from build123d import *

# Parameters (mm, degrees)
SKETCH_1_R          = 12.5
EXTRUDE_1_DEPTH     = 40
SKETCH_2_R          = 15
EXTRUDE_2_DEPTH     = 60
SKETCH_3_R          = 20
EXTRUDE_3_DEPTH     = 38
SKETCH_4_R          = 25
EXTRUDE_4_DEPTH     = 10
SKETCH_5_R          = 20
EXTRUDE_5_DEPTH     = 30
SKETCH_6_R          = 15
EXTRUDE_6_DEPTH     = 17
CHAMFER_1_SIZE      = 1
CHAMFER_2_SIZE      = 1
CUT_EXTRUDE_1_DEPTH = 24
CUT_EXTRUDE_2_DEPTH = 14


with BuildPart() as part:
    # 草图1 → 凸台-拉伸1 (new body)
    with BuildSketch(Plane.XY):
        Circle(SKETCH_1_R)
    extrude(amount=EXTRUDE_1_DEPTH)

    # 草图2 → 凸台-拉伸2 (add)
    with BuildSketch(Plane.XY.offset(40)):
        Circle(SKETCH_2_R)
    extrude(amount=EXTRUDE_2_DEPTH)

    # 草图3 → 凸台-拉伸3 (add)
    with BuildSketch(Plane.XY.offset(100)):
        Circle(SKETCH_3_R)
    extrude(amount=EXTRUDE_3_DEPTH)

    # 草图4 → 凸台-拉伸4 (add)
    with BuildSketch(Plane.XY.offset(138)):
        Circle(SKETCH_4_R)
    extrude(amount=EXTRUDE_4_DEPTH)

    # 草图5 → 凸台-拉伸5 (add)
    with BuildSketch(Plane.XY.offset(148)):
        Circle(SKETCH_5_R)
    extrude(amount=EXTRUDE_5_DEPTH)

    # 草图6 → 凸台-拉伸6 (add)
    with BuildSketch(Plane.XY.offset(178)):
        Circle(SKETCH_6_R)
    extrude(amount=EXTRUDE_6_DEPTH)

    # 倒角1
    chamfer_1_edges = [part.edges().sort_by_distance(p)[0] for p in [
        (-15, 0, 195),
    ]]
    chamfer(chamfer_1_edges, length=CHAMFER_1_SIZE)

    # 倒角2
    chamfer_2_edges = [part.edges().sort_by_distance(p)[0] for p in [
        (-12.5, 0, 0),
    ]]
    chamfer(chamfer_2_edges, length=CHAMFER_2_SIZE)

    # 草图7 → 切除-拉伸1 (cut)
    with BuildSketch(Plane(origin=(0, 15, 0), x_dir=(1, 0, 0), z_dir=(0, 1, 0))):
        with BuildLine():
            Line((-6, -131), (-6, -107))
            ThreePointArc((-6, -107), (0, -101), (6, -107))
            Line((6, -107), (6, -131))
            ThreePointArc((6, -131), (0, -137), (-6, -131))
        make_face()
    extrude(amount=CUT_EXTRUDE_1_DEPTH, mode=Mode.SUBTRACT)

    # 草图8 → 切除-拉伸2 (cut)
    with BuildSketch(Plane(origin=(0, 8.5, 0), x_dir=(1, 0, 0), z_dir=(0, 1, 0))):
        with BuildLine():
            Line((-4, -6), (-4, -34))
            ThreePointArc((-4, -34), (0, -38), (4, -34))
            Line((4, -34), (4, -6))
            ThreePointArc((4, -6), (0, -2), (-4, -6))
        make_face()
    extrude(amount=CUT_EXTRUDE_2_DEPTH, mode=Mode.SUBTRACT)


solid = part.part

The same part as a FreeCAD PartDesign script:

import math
import FreeCAD as App
import Part
import Sketcher


def edges_at(feature, points):
    """Names of the edges that pass closest to the given points."""
    edges = feature.Shape.Edges
    near = lambda p: min(range(len(edges)), key=lambda i: edges[i].distToShape(Part.Vertex(*p))[0])
    return sorted({f"Edge{near(p) + 1}" for p in points})

doc = App.newDocument("Part")
params = doc.addObject("Spreadsheet::Sheet", "Params")
for row, (alias, value) in enumerate([
    ("sketch1_diameter", "25 mm"),
    ("pad1_length", "40 mm"),
    ("sketch2_diameter", "30 mm"),
    ("pad2_length", "60 mm"),
    ("sketch3_diameter", "40 mm"),
    ("pad3_length", "38 mm"),
    ("sketch4_diameter", "50 mm"),
    ("pad4_length", "10 mm"),
    ("sketch5_diameter", "40 mm"),
    ("pad5_length", "30 mm"),
    ("sketch6_diameter", "30 mm"),
    ("pad6_length", "17 mm"),
    ("chamfer_size", "1 mm"),
    ("chamfer2_size", "1 mm"),
    ("sketch7_radius", "6 mm"),
    ("sketch7_height", "24 mm"),
    ("pocket1_length", "24 mm"),
    ("sketch8_radius", "4 mm"),
    ("sketch8_height", "28 mm"),
    ("pocket2_length", "14 mm"),
], start=1):
    params.set(f"A{row}", alias)
    params.set(f"B{row}", "=" + value)
    params.setAlias(f"B{row}", alias)

body = doc.addObject("PartDesign::Body", "Body")

sketch1 = body.newObject("Sketcher::SketchObject", "Sketch")
sketch1.AttachmentSupport = (doc.getObject("XY_Plane"), [""])
sketch1.MapMode = "FlatFace"
sketch1.addGeometry(Part.Circle(App.Vector(0, 0, 0), App.Vector(0, 0, 1), 12), False)
sketch1.addConstraint([
    Sketcher.Constraint("Coincident", 0, 3, -1, 1),
    Sketcher.Constraint("Diameter", 0, 25.0),
])
sketch1.setExpression("Constraints[1]", "Params.sketch1_diameter")
pad1 = body.newObject("PartDesign::Pad", "Pad")
pad1.Profile = sketch1
pad1.setExpression("Length", "Params.pad1_length")

sketch2 = body.newObject("Sketcher::SketchObject", "Sketch001")
sketch2.AttachmentSupport = (doc.getObject("XY_Plane"), [""])
sketch2.MapMode = "FlatFace"
sketch2.AttachmentOffset = App.Placement(App.Vector(0, 0, 40), App.Rotation())
sketch2.addGeometry(Part.Circle(App.Vector(0, 0, 0), App.Vector(0, 0, 1), 15), False)
sketch2.addConstraint([
    Sketcher.Constraint("Coincident", 0, 3, -1, 1),
    Sketcher.Constraint("Diameter", 0, 30.0),
])
sketch2.setExpression("Constraints[1]", "Params.sketch2_diameter")
pad2 = body.newObject("PartDesign::Pad", "Pad001")
pad2.Profile = sketch2
pad2.setExpression("Length", "Params.pad2_length")

sketch3 = body.newObject("Sketcher::SketchObject", "Sketch002")
sketch3.AttachmentSupport = (doc.getObject("XY_Plane"), [""])
sketch3.MapMode = "FlatFace"
sketch3.AttachmentOffset = App.Placement(App.Vector(0, 0, 100), App.Rotation())
sketch3.addGeometry(Part.Circle(App.Vector(0, 0, 0), App.Vector(0, 0, 1), 20), False)
sketch3.addConstraint([
    Sketcher.Constraint("Coincident", 0, 3, -1, 1),
    Sketcher.Constraint("Diameter", 0, 40.0),
])
sketch3.setExpression("Constraints[1]", "Params.sketch3_diameter")
pad3 = body.newObject("PartDesign::Pad", "Pad002")
pad3.Profile = sketch3
pad3.setExpression("Length", "Params.pad3_length")

sketch4 = body.newObject("Sketcher::SketchObject", "Sketch003")
sketch4.AttachmentSupport = (doc.getObject("XY_Plane"), [""])
sketch4.MapMode = "FlatFace"
sketch4.AttachmentOffset = App.Placement(App.Vector(0, 0, 138), App.Rotation())
sketch4.addGeometry(Part.Circle(App.Vector(0, 0, 0), App.Vector(0, 0, 1), 25), False)
sketch4.addConstraint([
    Sketcher.Constraint("Coincident", 0, 3, -1, 1),
    Sketcher.Constraint("Diameter", 0, 50.0),
])
sketch4.setExpression("Constraints[1]", "Params.sketch4_diameter")
pad4 = body.newObject("PartDesign::Pad", "Pad003")
pad4.Profile = sketch4
pad4.setExpression("Length", "Params.pad4_length")

sketch5 = body.newObject("Sketcher::SketchObject", "Sketch004")
sketch5.AttachmentSupport = (doc.getObject("XY_Plane"), [""])
sketch5.MapMode = "FlatFace"
sketch5.AttachmentOffset = App.Placement(App.Vector(0, 0, 148), App.Rotation())
sketch5.addGeometry(Part.Circle(App.Vector(0, 0, 0), App.Vector(0, 0, 1), 20), False)
sketch5.addConstraint([
    Sketcher.Constraint("Coincident", 0, 3, -1, 1),
    Sketcher.Constraint("Diameter", 0, 40.0),
])
sketch5.setExpression("Constraints[1]", "Params.sketch5_diameter")
pad5 = body.newObject("PartDesign::Pad", "Pad004")
pad5.Profile = sketch5
pad5.setExpression("Length", "Params.pad5_length")

sketch6 = body.newObject("Sketcher::SketchObject", "Sketch005")
sketch6.AttachmentSupport = (doc.getObject("XY_Plane"), [""])
sketch6.MapMode = "FlatFace"
sketch6.AttachmentOffset = App.Placement(App.Vector(0, 0, 178), App.Rotation())
sketch6.addGeometry(Part.Circle(App.Vector(0, 0, 0), App.Vector(0, 0, 1), 15), False)
sketch6.addConstraint([
    Sketcher.Constraint("Coincident", 0, 3, -1, 1),
    Sketcher.Constraint("Diameter", 0, 30.0),
])
sketch6.setExpression("Constraints[1]", "Params.sketch6_diameter")
pad6 = body.newObject("PartDesign::Pad", "Pad005")
pad6.Profile = sketch6
pad6.setExpression("Length", "Params.pad6_length")
doc.recompute()

chamfer = body.newObject("PartDesign::Chamfer", "Chamfer")
chamfer.Base = (pad6, edges_at(pad6, [(-15, 0, 195)]))
chamfer.setExpression("Size", "Params.chamfer_size")
doc.recompute()

chamfer2 = body.newObject("PartDesign::Chamfer", "Chamfer001")
chamfer2.Base = (chamfer, edges_at(chamfer, [(-12.5, 0, 0)]))
chamfer2.setExpression("Size", "Params.chamfer2_size")

sketch7 = body.newObject("Sketcher::SketchObject", "Sketch006")
sketch7.AttachmentSupport = (doc.getObject("XZ_Plane"), [""])
sketch7.MapMode = "FlatFace"
sketch7.AttachmentOffset = App.Placement(App.Vector(0, 0, -15), App.Rotation())
sketch7.addGeometry([
    Part.LineSegment(App.Vector(-6, 107, 0), App.Vector(-6, 131, 0)),
    Part.ArcOfCircle(Part.Circle(App.Vector(0, 131, 0), App.Vector(0, 0, 1), 6), math.radians(0), math.radians(180)),
    Part.LineSegment(App.Vector(6, 131, 0), App.Vector(6, 107, 0)),
    Part.ArcOfCircle(Part.Circle(App.Vector(0, 107, 0), App.Vector(0, 0, 1), 6), math.radians(180), math.radians(360)),
], False)
sketch7.addConstraint([
    Sketcher.Constraint("Tangent", 0, 2, 1, 2),
    Sketcher.Constraint("Tangent", 1, 1, 2, 1),
    Sketcher.Constraint("Tangent", 2, 2, 3, 2),
    Sketcher.Constraint("Tangent", 3, 1, 0, 1),
    Sketcher.Constraint("Vertical", 0),
    Sketcher.Constraint("Vertical", 2),
    Sketcher.Constraint("PointOnObject", 1, 3, -2),
    Sketcher.Constraint("Radius", 1, 6.0),
    Sketcher.Constraint("DistanceY", 0, 1, 0, 2, 24.0),
    Sketcher.Constraint("DistanceY", -1, 1, 1, 3, 131.0),
])
sketch7.setExpression("Constraints[7]", "Params.sketch7_radius")
sketch7.setExpression("Constraints[8]", "Params.sketch7_height")
pocket1 = body.newObject("PartDesign::Pocket", "Pocket")
pocket1.Profile = sketch7
pocket1.setExpression("Length", "Params.pocket1_length")

sketch8 = body.newObject("Sketcher::SketchObject", "Sketch007")
sketch8.AttachmentSupport = (doc.getObject("XZ_Plane"), [""])
sketch8.MapMode = "FlatFace"
sketch8.AttachmentOffset = App.Placement(App.Vector(0, 0, -8.5), App.Rotation())
sketch8.addGeometry([
    Part.LineSegment(App.Vector(-4, 6, 0), App.Vector(-4, 34, 0)),
    Part.ArcOfCircle(Part.Circle(App.Vector(0, 34, 0), App.Vector(0, 0, 1), 4), math.radians(0), math.radians(180)),
    Part.LineSegment(App.Vector(4, 34, 0), App.Vector(4, 6, 0)),
    Part.ArcOfCircle(Part.Circle(App.Vector(0, 6, 0), App.Vector(0, 0, 1), 4), math.radians(180), math.radians(360)),
], False)
sketch8.addConstraint([
    Sketcher.Constraint("Tangent", 0, 2, 1, 2),
    Sketcher.Constraint("Tangent", 1, 1, 2, 1),
    Sketcher.Constraint("Tangent", 2, 2, 3, 2),
    Sketcher.Constraint("Tangent", 3, 1, 0, 1),
    Sketcher.Constraint("Vertical", 0),
    Sketcher.Constraint("Vertical", 2),
    Sketcher.Constraint("PointOnObject", 1, 3, -2),
    Sketcher.Constraint("Radius", 1, 4.0),
    Sketcher.Constraint("DistanceY", 0, 1, 0, 2, 28.0),
    Sketcher.Constraint("DistanceY", -1, 1, 1, 3, 34.0),
])
sketch8.setExpression("Constraints[7]", "Params.sketch8_radius")
sketch8.setExpression("Constraints[8]", "Params.sketch8_height")
pocket2 = body.newObject("PartDesign::Pocket", "Pocket001")
pocket2.Profile = sketch8
pocket2.setExpression("Length", "Params.pocket2_length")

doc.recompute()
